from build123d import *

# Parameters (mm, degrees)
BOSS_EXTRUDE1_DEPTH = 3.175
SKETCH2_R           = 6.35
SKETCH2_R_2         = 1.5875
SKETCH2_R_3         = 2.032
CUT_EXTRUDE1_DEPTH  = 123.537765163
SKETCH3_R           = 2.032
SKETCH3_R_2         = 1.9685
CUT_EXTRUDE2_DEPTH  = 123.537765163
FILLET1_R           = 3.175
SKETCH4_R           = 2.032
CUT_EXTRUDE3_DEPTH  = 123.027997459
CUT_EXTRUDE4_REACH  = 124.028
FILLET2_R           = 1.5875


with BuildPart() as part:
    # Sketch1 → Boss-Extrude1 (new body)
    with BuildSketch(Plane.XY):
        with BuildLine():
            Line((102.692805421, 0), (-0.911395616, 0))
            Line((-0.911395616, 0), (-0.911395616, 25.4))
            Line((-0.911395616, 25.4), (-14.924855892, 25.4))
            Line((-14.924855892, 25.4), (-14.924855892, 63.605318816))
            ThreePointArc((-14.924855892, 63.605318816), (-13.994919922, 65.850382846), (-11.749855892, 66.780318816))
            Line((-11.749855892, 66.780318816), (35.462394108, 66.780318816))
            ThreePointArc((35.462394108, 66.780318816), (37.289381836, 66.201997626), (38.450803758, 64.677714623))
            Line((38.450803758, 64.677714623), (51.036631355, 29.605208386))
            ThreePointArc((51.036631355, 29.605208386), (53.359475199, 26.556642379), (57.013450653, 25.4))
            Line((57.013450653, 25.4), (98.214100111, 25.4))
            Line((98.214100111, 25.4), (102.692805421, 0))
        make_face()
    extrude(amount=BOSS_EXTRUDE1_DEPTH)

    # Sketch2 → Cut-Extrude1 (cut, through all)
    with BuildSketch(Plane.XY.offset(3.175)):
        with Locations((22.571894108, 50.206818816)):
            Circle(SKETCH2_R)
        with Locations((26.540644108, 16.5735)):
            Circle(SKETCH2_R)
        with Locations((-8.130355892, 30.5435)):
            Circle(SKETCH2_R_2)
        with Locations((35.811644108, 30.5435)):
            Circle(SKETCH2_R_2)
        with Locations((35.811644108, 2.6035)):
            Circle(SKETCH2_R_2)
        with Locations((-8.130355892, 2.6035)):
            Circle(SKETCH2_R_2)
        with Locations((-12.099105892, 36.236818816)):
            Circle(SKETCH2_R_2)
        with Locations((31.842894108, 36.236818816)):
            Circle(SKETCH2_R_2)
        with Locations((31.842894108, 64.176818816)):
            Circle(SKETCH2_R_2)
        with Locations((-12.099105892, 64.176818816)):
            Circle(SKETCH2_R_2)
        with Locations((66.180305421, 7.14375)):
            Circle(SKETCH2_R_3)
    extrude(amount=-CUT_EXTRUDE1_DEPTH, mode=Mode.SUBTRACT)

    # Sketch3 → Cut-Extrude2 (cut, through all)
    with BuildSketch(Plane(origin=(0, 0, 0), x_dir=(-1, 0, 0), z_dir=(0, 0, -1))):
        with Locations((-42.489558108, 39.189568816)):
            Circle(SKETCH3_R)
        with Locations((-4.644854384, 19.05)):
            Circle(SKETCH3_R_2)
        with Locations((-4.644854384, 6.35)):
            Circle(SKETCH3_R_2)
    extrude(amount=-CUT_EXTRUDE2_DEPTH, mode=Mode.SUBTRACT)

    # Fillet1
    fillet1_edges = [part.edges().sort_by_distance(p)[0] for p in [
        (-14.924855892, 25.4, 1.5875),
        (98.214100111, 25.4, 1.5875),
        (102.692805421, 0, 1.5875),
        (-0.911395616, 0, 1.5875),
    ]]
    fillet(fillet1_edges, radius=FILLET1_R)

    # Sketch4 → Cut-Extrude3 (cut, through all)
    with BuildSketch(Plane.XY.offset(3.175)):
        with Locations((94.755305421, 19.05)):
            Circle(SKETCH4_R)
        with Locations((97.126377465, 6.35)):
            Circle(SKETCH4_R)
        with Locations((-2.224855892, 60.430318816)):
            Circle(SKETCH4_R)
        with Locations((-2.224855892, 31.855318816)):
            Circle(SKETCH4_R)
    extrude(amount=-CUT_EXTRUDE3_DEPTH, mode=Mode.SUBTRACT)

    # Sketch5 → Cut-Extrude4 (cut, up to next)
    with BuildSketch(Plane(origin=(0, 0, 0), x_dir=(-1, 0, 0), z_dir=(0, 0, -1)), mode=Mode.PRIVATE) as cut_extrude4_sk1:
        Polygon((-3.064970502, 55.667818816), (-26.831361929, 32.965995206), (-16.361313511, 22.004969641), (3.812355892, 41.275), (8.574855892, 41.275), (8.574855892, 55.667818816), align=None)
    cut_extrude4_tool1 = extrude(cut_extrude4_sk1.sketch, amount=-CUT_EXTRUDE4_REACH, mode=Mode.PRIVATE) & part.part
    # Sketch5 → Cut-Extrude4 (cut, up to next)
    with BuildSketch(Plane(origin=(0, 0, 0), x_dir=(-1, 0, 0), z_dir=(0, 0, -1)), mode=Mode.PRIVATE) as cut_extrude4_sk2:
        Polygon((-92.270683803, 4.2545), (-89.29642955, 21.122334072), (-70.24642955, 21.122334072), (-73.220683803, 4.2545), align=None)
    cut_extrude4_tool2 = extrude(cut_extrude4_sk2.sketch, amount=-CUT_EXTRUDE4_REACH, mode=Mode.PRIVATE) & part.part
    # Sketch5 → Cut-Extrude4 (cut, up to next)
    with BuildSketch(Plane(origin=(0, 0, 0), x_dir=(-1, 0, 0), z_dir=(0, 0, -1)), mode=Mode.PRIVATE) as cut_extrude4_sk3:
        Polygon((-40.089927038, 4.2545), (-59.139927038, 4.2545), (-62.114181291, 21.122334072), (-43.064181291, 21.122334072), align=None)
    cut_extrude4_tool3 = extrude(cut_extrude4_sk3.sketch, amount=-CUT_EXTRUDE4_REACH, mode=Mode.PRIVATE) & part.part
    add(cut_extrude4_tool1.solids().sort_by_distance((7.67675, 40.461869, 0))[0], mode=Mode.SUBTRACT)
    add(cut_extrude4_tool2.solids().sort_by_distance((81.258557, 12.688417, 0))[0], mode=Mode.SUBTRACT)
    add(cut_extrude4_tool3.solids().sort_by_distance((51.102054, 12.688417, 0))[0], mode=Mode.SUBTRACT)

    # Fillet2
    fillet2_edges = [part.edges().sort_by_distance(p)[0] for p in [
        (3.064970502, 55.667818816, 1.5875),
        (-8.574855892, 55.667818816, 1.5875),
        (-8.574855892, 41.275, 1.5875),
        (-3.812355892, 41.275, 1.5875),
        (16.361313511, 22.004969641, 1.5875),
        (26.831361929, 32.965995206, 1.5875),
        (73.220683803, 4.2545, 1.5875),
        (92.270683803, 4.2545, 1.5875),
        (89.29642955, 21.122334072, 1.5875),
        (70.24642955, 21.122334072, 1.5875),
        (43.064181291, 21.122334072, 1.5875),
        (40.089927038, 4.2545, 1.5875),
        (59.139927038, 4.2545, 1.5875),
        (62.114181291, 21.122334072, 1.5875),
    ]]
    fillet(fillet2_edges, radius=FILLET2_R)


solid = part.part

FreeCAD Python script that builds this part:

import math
import FreeCAD as App
import Part
import Sketcher
from FreeCAD import Vector
Q = App.Units.Quantity


def edges_at(feature, points):
    """Names of the edges that pass closest to the given points."""
    edges = feature.Shape.Edges
    near = lambda p: min(range(len(edges)), key=lambda i: edges[i].distToShape(Part.Vertex(*p))[0])
    return sorted({f"Edge{near(p) + 1}" for p in points})

doc = App.newDocument("Part")
body = doc.addObject("PartDesign::Body", "Body")

# Sketch on XY plane
sketch1 = doc.addObject("Sketcher::SketchObject", "Sketch")
body.addObject(sketch1)
sketch1.AttachmentSupport = (doc.XY_Plane, [""])
sketch1.MapMode = "FlatFace"
sketch1.addGeometry(Part.LineSegment(Vector(-0.9, 0, 0), Vector(102.7, 0, 0)), False)
sketch1.addGeometry(Part.LineSegment(Vector(102.7, 0, 0), Vector(98.2, 25.4, 0)), False)
sketch1.addGeometry(Part.LineSegment(Vector(98.2, 25.4, 0), Vector(57, 25.4, 0)), False)
sketch1.addGeometry(Part.ArcOfCircle(Part.Circle(Vector(57, 31.7, 0), Vector(0, 0, 1), 6.3), math.radians(-160), math.radians(-90)), False)
sketch1.addGeometry(Part.LineSegment(Vector(51, 29.6, 0), Vector(38.5, 64.7, 0)), False)
sketch1.addGeometry(Part.ArcOfCircle(Part.Circle(Vector(35.5, 63.6, 0), Vector(0, 0, 1), 3.2), math.radians(20), math.radians(90)), False)
sketch1.addGeometry(Part.LineSegment(Vector(35.5, 66.8, 0), Vector(-11.7, 66.8, 0)), False)
sketch1.addGeometry(Part.ArcOfCircle(Part.Circle(Vector(-11.7, 63.6, 0), Vector(0, 0, 1), 3.2), math.radians(90), math.radians(180)), False)
sketch1.addGeometry(Part.LineSegment(Vector(-14.9, 63.6, 0), Vector(-14.9, 25.4, 0)), False)
sketch1.addGeometry(Part.LineSegment(Vector(-14.9, 25.4, 0), Vector(-0.9, 25.4, 0)), False)
sketch1.addGeometry(Part.LineSegment(Vector(-0.9, 25.4, 0), Vector(-0.9, 0, 0)), False)
sketch1.addConstraint(Sketcher.Constraint("Coincident", 0, 2, 1, 1))
sketch1.addConstraint(Sketcher.Constraint("Coincident", 1, 2, 2, 1))
sketch1.addConstraint(Sketcher.Constraint("Tangent", 2, 2, 3, 2))
sketch1.addConstraint(Sketcher.Constraint("Tangent", 3, 1, 4, 1))
sketch1.addConstraint(Sketcher.Constraint("Tangent", 4, 2, 5, 1))
sketch1.addConstraint(Sketcher.Constraint("Tangent", 5, 2, 6, 1))
sketch1.addConstraint(Sketcher.Constraint("Tangent", 6, 2, 7, 1))
sketch1.addConstraint(Sketcher.Constraint("Tangent", 7, 2, 8, 1))
sketch1.addConstraint(Sketcher.Constraint("Coincident", 8, 2, 9, 1))
sketch1.addConstraint(Sketcher.Constraint("Coincident", 9, 2, 10, 1))
sketch1.addConstraint(Sketcher.Constraint("Coincident", 10, 2, 0, 1))
sketch1.addConstraint(Sketcher.Constraint("Horizontal", 0))
sketch1.addConstraint(Sketcher.Constraint("Horizontal", 2))
sketch1.addConstraint(Sketcher.Constraint("Horizontal", 6))
sketch1.addConstraint(Sketcher.Constraint("Vertical", 8))
sketch1.addConstraint(Sketcher.Constraint("Horizontal", 9))
sketch1.addConstraint(Sketcher.Constraint("Vertical", 10))
sketch1.addConstraint(Sketcher.Constraint("Equal", 5, 7))
sketch1.addConstraint(Sketcher.Constraint("PointOnObject", 0, 2, -1))
sketch1.addConstraint(Sketcher.Constraint("Horizontal", 2, 2, 8, 2))
sketch1.addConstraint(Sketcher.Constraint("DistanceY", 10, 2, 10, 1, Q("1 in")))
sketch1.addConstraint(Sketcher.Constraint("Radius", 3, Q("0.25 in")))
sketch1.addConstraint(Sketcher.Constraint("Angle", 1, Q("100 deg")))
sketch1.addConstraint(Sketcher.Constraint("Radius", 5, Q("0.125 in")))
sketch1.addConstraint(Sketcher.Constraint("DistanceX", 0, 1, 0, 2, Q("103.604201 mm")))
sketch1.addConstraint(Sketcher.Constraint("DistanceX", 2, 2, 2, 1, Q("41.200649 mm")))
sketch1.addConstraint(Sketcher.Constraint("DistanceX", 6, 2, 6, 1, Q("47.21225 mm")))
sketch1.addConstraint(Sketcher.Constraint("DistanceX", 9, 1, 9, 2, Q("14.01346 mm")))
sketch1.addConstraint(Sketcher.Constraint("DistanceY", 8, 2, 8, 1, Q("38.205319 mm")))
sketch1.addConstraint(Sketcher.Constraint("DistanceX", -1, 1, 1, 2, Q("98.2141 mm")))
pad1 = doc.addObject("PartDesign::Pad", "Pad")
body.addObject(pad1)
pad1.Profile = sketch1
pad1.Length = Q("0.125 in")

# Sketch on XY plane
sketch2 = doc.addObject("Sketcher::SketchObject", "Sketch001")
body.addObject(sketch2)
sketch2.AttachmentSupport = (doc.XY_Plane, [""])
sketch2.MapMode = "FlatFace"
sketch2.AttachmentOffset = App.Placement(Vector(0, 0, 0.125 * 25.4), App.Rotation())
sketch2.addGeometry(Part.Circle(Vector(22.6, 50.2, 0), Vector(0, 0, 1), 6.3), False)
sketch2.addGeometry(Part.Circle(Vector(26.5, 16.6, 0), Vector(0, 0, 1), 6.3), False)
sketch2.addGeometry(Part.Circle(Vector(-8.1, 30.5, 0), Vector(0, 0, 1), 1.6), False)
sketch2.addGeometry(Part.Circle(Vector(35.8, 30.5, 0), Vector(0, 0, 1), 1.6), False)
sketch2.addGeometry(Part.Circle(Vector(35.8, 2.6, 0), Vector(0, 0, 1), 1.6), False)
sketch2.addGeometry(Part.Circle(Vector(-8.1, 2.6, 0), Vector(0, 0, 1), 1.6), False)
sketch2.addGeometry(Part.Circle(Vector(-12.1, 36.2, 0), Vector(0, 0, 1), 1.6), False)
sketch2.addGeometry(Part.Circle(Vector(31.8, 36.2, 0), Vector(0, 0, 1), 1.6), False)
sketch2.addGeometry(Part.Circle(Vector(31.8, 64.2, 0), Vector(0, 0, 1), 1.6), False)
sketch2.addGeometry(Part.Circle(Vector(-12.1, 64.2, 0), Vector(0, 0, 1), 1.6), False)
sketch2.addGeometry(Part.Circle(Vector(66.2, 7.1, 0), Vector(0, 0, 1), 2), False)
sketch2.addConstraint(Sketcher.Constraint("Equal", 0, 1))
sketch2.addConstraint(Sketcher.Constraint("Equal", 2, 3))
sketch2.addConstraint(Sketcher.Constraint("Equal", 3, 4))
sketch2.addConstraint(Sketcher.Constraint("Equal", 4, 5))
sketch2.addConstraint(Sketcher.Constraint("Equal", 5, 6))
sketch2.addConstraint(Sketcher.Constraint("Equal", 6, 7))
sketch2.addConstraint(Sketcher.Constraint("Equal", 7, 8))
sketch2.addConstraint(Sketcher.Constraint("Equal", 8, 9))
sketch2.addConstraint(Sketcher.Constraint("Horizontal", 2, 3, 3, 3))
sketch2.addConstraint(Sketcher.Constraint("Horizontal", 4, 3, 5, 3))
sketch2.addConstraint(Sketcher.Constraint("Horizontal", 6, 3, 7, 3))
sketch2.addConstraint(Sketcher.Constraint("Horizontal", 8, 3, 9, 3))
sketch2.addConstraint(Sketcher.Constraint("Vertical", 3, 3, 4, 3))
sketch2.addConstraint(Sketcher.Constraint("Vertical", 2, 3, 5, 3))
sketch2.addConstraint(Sketcher.Constraint("Vertical", 7, 3, 8, 3))
sketch2.addConstraint(Sketcher.Constraint("Vertical", 6, 3, 9, 3))
sketch2.addConstraint(Sketcher.Constraint("Diameter", 0, Q("0.5 in")))
sketch2.addConstraint(Sketcher.Constraint("Diameter", 10, Q("0.16 in")))
sketch2.addConstraint(Sketcher.Constraint("Diameter", 2, Q("0.125 in")))
sketch2.addConstraint(Sketcher.Constraint("DistanceY", 4, 3, 3, 3, Q("1.1 in")))
sketch2.addConstraint(Sketcher.Constraint("DistanceY", 7, 3, 8, 3, Q("1.1 in")))
sketch2.addConstraint(Sketcher.Constraint("DistanceY", 1, 3, 2, 3, Q("0.55 in")))
sketch2.addConstraint(Sketcher.Constraint("DistanceX", 2, 3, 3, 3, Q("1.73 in")))
sketch2.addConstraint(Sketcher.Constraint("DistanceY", 6, 3, 0, 3, Q("0.55 in")))
sketch2.addConstraint(Sketcher.Constraint("DistanceX", 6, 3, 8, 3, Q("1.73 in")))
sketch2.addConstraint(Sketcher.Constraint("DistanceY", -1, 1, 10, 3, Q("0.28125 in")))
sketch2.addConstraint(Sketcher.Constraint("DistanceX", 0, 3, 1, 3, Q("0.15625 in")))
sketch2.addConstraint(Sketcher.Constraint("DistanceX", 2, 3, 1, 3, Q("1.365 in")))
sketch2.addConstraint(Sketcher.Constraint("DistanceX", 6, 3, 2, 3, Q("0.15625 in")))
sketch2.addConstraint(Sketcher.Constraint("DistanceY", -1, 1, 1, 3, Q("0.6525 in")))
sketch2.addConstraint(Sketcher.Constraint("DistanceY", -1, 1, 0, 3, Q("50.206819 mm")))
sketch2.addConstraint(Sketcher.Constraint("DistanceX", 4, 3, 10, 3, Q("30.368661 mm")))
sketch2.addConstraint(Sketcher.Constraint("DistanceX", -1, 1, 0, 3, Q("22.571894 mm")))
pocket1 = doc.addObject("PartDesign::Pocket", "Pocket")
body.addObject(pocket1)
pocket1.Profile = sketch2
pocket1.Type = "ThroughAll"

# Sketch on XY plane
sketch3 = doc.addObject("Sketcher::SketchObject", "Sketch002")
body.addObject(sketch3)
sketch3.AttachmentSupport = (doc.XY_Plane, [""])
sketch3.MapMode = "FlatFace"
sketch3.addGeometry(Part.Circle(Vector(42.5, 39.2, 0), Vector(0, 0, 1), 2), False)
sketch3.addGeometry(Part.Circle(Vector(4.6, 19.1, 0), Vector(0, 0, 1), 2), False)
sketch3.addGeometry(Part.Circle(Vector(4.6, 6.3, 0), Vector(0, 0, 1), 2), False)
sketch3.addConstraint(Sketcher.Constraint("Equal", 1, 2))
sketch3.addConstraint(Sketcher.Constraint("Vertical", 1, 3, 2, 3))
sketch3.addConstraint(Sketcher.Constraint("Diameter", 0, Q("0.16 in")))
sketch3.addConstraint(Sketcher.Constraint("Diameter", 1, Q("0.155 in")))
sketch3.addConstraint(Sketcher.Constraint("DistanceY", 2, 3, 1, 3, Q("0.5 in")))
sketch3.addConstraint(Sketcher.Constraint("DistanceY", -1, 1, 1, 3, Q("0.75 in")))
sketch3.addConstraint(Sketcher.Constraint("DistanceX", -1, 1, 0, 3, Q("42.489558 mm")))
sketch3.addConstraint(Sketcher.Constraint("DistanceY", -1, 1, 0, 3, Q("39.189569 mm")))
sketch3.addConstraint(Sketcher.Constraint("DistanceX", -1, 1, 1, 3, Q("4.644854 mm")))
pocket2 = doc.addObject("PartDesign::Pocket", "Pocket001")
body.addObject(pocket2)
pocket2.Profile = sketch3
pocket2.Type = "ThroughAll"
pocket2.Reversed = True
doc.recompute()

fillet = doc.addObject("PartDesign::Fillet", "Fillet")
body.addObject(fillet)
fillet.Base = (pocket2, edges_at(pocket2, [
    (-14.925, 25.4, 1.587),
    (98.214, 25.4, 1.587),
    (102.693, 0, 1.587),
    (-0.911, 0, 1.587),
]))
fillet.Radius = Q("0.125 in")

# Sketch on XY plane
sketch4 = doc.addObject("Sketcher::SketchObject", "Sketch003")
body.addObject(sketch4)
sketch4.AttachmentSupport = (doc.XY_Plane, [""])
sketch4.MapMode = "FlatFace"
sketch4.AttachmentOffset = App.Placement(Vector(0, 0, 0.125 * 25.4), App.Rotation())
sketch4.addGeometry(Part.Circle(Vector(94.8, 19.1, 0), Vector(0, 0, 1), 2), False)
sketch4.addGeometry(Part.Circle(Vector(97.1, 6.3, 0), Vector(0, 0, 1), 2), False)
sketch4.addGeometry(Part.Circle(Vector(-2.2, 60.4, 0), Vector(0, 0, 1), 2), False)
sketch4.addGeometry(Part.Circle(Vector(-2.2, 31.9, 0), Vector(0, 0, 1), 2), False)
sketch4.addConstraint(Sketcher.Constraint("Equal", 0, 1))
sketch4.addConstraint(Sketcher.Constraint("Equal", 1, 2))
sketch4.addConstraint(Sketcher.Constraint("Equal", 2, 3))
sketch4.addConstraint(Sketcher.Constraint("Vertical", 2, 3, 3, 3))
sketch4.addConstraint(Sketcher.Constraint("Diameter", 0, Q("0.16 in")))
sketch4.addConstraint(Sketcher.Constraint("DistanceY", 1, 3, 0, 3, Q("0.5 in")))
sketch4.addConstraint(Sketcher.Constraint("DistanceY", -1, 1, 0, 3, Q("0.75 in")))
sketch4.addConstraint(Sketcher.Constraint("DistanceY", 3, 3, 2, 3, Q("1.125 in")))
sketch4.addConstraint(Sketcher.Constraint("DistanceY", -1, 1, 2, 3, Q("60.430319 mm")))
sketch4.addConstraint(Sketcher.Constraint("DistanceX", 2, 3, 0, 3, Q("96.980161 mm")))
sketch4.addConstraint(Sketcher.Constraint("DistanceX", -1, 1, 0, 3, Q("94.755305 mm")))
sketch4.addConstraint(Sketcher.Constraint("DistanceX", -1, 1, 1, 3, Q("97.126377 mm")))
pocket3 = doc.addObject("PartDesign::Pocket", "Pocket002")
body.addObject(pocket3)
pocket3.Profile = sketch4
pocket3.Type = "ThroughAll"

# Sketch on XY plane
sketch5 = doc.addObject("Sketcher::SketchObject", "Sketch004")
body.addObject(sketch5)
sketch5.AttachmentSupport = (doc.XY_Plane, [""])
sketch5.MapMode = "FlatFace"
sketch5.addGeometry(Part.LineSegment(Vector(3.1, 55.7, 0), Vector(26.8, 33, 0)), False)
sketch5.addGeometry(Part.LineSegment(Vector(26.8, 33, 0), Vector(16.4, 22, 0)), False)
sketch5.addGeometry(Part.LineSegment(Vector(16.4, 22, 0), Vector(-3.8, 41.3, 0)), False)
sketch5.addGeometry(Part.LineSegment(Vector(-3.8, 41.3, 0), Vector(-8.6, 41.3, 0)), False)
sketch5.addGeometry(Part.LineSegment(Vector(-8.6, 41.3, 0), Vector(-8.6, 55.7, 0)), False)
sketch5.addGeometry(Part.LineSegment(Vector(-8.6, 55.7, 0), Vector(3.1, 55.7, 0)), False)
sketch5.addConstraint(Sketcher.Constraint("Coincident", 0, 2, 1, 1))
sketch5.addConstraint(Sketcher.Constraint("Coincident", 1, 2, 2, 1))
sketch5.addConstraint(Sketcher.Constraint("Coincident", 2, 2, 3, 1))
sketch5.addConstraint(Sketcher.Constraint("Coincident", 3, 2, 4, 1))
sketch5.addConstraint(Sketcher.Constraint("Coincident", 4, 2, 5, 1))
sketch5.addConstraint(Sketcher.Constraint("Coincident", 5, 2, 0, 1))
sketch5.addConstraint(Sketcher.Constraint("Horizontal", 3))
sketch5.addConstraint(Sketcher.Constraint("Vertical", 4))
sketch5.addConstraint(Sketcher.Constraint("Horizontal", 5))
sketch5.addConstraint(Sketcher.Constraint("Perpendicular", 0, 1))
sketch5.addConstraint(Sketcher.Constraint("Perpendicular", 1, 2))
sketch5.addConstraint(Sketcher.Constraint("DistanceX", 3, 2, 3, 1, Q("0.1875 in")))
sketch5.addConstraint(Sketcher.Constraint("DistanceY", -1, 1, 2, 2, Q("1.625 in")))
sketch5.addConstraint(Sketcher.Constraint("DistanceY", 4, 1, 4, 2, Q("14.392819 mm")))
sketch5.addConstraint(Sketcher.Constraint("Distance", 0, Q("32.866612 mm")))
sketch5.addConstraint(Sketcher.Constraint("DistanceX", 5, 1, 5, 2, Q("11.639826 mm")))
sketch5.addConstraint(Sketcher.Constraint("DistanceX", -1, 1, 0, 2, Q("26.831362 mm")))
sketch5.addConstraint(Sketcher.Constraint("DistanceY", -1, 1, 1, 2, Q("22.00497 mm")))
pocket4 = doc.addObject("PartDesign::Pocket", "Pocket003")
body.addObject(pocket4)
pocket4.Profile = sketch5
pocket4.Type = "UpToFirst"
pocket4.Reversed = True

# Sketch on XY plane
sketch6 = doc.addObject("Sketcher::SketchObject", "Sketch005")
body.addObject(sketch6)
sketch6.AttachmentSupport = (doc.XY_Plane, [""])
sketch6.MapMode = "FlatFace"
sketch6.addGeometry(Part.LineSegment(Vector(89, 21, 0), Vector(92, 4, 0)), False)
sketch6.addGeometry(Part.LineSegment(Vector(92, 4, 0), Vector(73, 4, 0)), False)
sketch6.addGeometry(Part.LineSegment(Vector(73, 4, 0), Vector(70, 21, 0)), False)
sketch6.addGeometry(Part.LineSegment(Vector(70, 21, 0), Vector(89, 21, 0)), False)
sketch6.addConstraint(Sketcher.Constraint("Coincident", 0, 2, 1, 1))
sketch6.addConstraint(Sketcher.Constraint("Coincident", 1, 2, 2, 1))
sketch6.addConstraint(Sketcher.Constraint("Coincident", 2, 2, 3, 1))
sketch6.addConstraint(Sketcher.Constraint("Coincident", 3, 2, 0, 1))
sketch6.addConstraint(Sketcher.Constraint("Horizontal", 1))
sketch6.addConstraint(Sketcher.Constraint("Horizontal", 3))
sketch6.addConstraint(Sketcher.Constraint("Parallel", 0, 2))
sketch6.addConstraint(Sketcher.Constraint("Angle", 0, Q("-80 deg")))
sketch6.addConstraint(Sketcher.Constraint("DistanceX", 1, 2, 1, 1, Q("0.75 in")))
sketch6.addConstraint(Sketcher.Constraint("DistanceY", -1, 1, 0, 2, Q("0.1675 in")))
sketch6.addConstraint(Sketcher.Constraint("DistanceX", -1, 1, 2, 2, Q("70.24643 mm")))
sketch6.addConstraint(Sketcher.Constraint("Distance", 0, Q("17.128048 mm")))
pocket5 = doc.addObject("PartDesign::Pocket", "Pocket004")
body.addObject(pocket5)
pocket5.Profile = sketch6
pocket5.Type = "UpToFirst"
pocket5.Reversed = True

# Sketch on XY plane
sketch7 = doc.addObject("Sketcher::SketchObject", "Sketch006")
body.addObject(sketch7)
sketch7.AttachmentSupport = (doc.XY_Plane, [""])
sketch7.MapMode = "FlatFace"
sketch7.addGeometry(Part.LineSegment(Vector(59, 4, 0), Vector(40, 4, 0)), False)
sketch7.addGeometry(Part.LineSegment(Vector(40, 4, 0), Vector(43, 21, 0)), False)
sketch7.addGeometry(Part.LineSegment(Vector(43, 21, 0), Vector(62, 21, 0)), False)
sketch7.addGeometry(Part.LineSegment(Vector(62, 21, 0), Vector(59, 4, 0)), False)
sketch7.addConstraint(Sketcher.Constraint("Coincident", 0, 2, 1, 1))
sketch7.addConstraint(Sketcher.Constraint("Coincident", 1, 2, 2, 1))
sketch7.addConstraint(Sketcher.Constraint("Coincident", 2, 2, 3, 1))
sketch7.addConstraint(Sketcher.Constraint("Coincident", 3, 2, 0, 1))
sketch7.addConstraint(Sketcher.Constraint("Horizontal", 0))
sketch7.addConstraint(Sketcher.Constraint("Horizontal", 2))
sketch7.addConstraint(Sketcher.Constraint("Parallel", 1, 3))
sketch7.addConstraint(Sketcher.Constraint("Angle", 1, Q("80 deg")))
sketch7.addConstraint(Sketcher.Constraint("DistanceX", 0, 2, 0, 1, Q("0.75 in")))
sketch7.addConstraint(Sketcher.Constraint("DistanceY", -1, 1, 0, 2, Q("0.1675 in")))
sketch7.addConstraint(Sketcher.Constraint("DistanceX", -1, 1, 1, 2, Q("43.064181 mm")))
sketch7.addConstraint(Sketcher.Constraint("Distance", 1, Q("17.128048 mm")))
pocket6 = doc.addObject("PartDesign::Pocket", "Pocket005")
body.addObject(pocket6)
pocket6.Profile = sketch7
pocket6.Type = "UpToFirst"
pocket6.Reversed = True
doc.recompute()

fillet2 = doc.addObject("PartDesign::Fillet", "Fillet001")
body.addObject(fillet2)
fillet2.Base = (pocket6, edges_at(pocket6, [
    (3.065, 55.668, 1.587),
    (-8.575, 55.668, 1.587),
    (-8.575, 41.275, 1.587),
    (-3.812, 41.275, 1.587),
    (16.361, 22.005, 1.587),
    (26.831, 32.966, 1.587),
    (73.221, 4.255, 1.587),
    (92.271, 4.255, 1.587),
    (89.296, 21.122, 1.587),
    (70.246, 21.122, 1.587),
    (43.064, 21.122, 1.587),
    (40.09, 4.255, 1.587),
    (59.14, 4.255, 1.587),
    (62.114, 21.122, 1.587),
]))
fillet2.Radius = Q("0.0625 in")

doc.recompute()
